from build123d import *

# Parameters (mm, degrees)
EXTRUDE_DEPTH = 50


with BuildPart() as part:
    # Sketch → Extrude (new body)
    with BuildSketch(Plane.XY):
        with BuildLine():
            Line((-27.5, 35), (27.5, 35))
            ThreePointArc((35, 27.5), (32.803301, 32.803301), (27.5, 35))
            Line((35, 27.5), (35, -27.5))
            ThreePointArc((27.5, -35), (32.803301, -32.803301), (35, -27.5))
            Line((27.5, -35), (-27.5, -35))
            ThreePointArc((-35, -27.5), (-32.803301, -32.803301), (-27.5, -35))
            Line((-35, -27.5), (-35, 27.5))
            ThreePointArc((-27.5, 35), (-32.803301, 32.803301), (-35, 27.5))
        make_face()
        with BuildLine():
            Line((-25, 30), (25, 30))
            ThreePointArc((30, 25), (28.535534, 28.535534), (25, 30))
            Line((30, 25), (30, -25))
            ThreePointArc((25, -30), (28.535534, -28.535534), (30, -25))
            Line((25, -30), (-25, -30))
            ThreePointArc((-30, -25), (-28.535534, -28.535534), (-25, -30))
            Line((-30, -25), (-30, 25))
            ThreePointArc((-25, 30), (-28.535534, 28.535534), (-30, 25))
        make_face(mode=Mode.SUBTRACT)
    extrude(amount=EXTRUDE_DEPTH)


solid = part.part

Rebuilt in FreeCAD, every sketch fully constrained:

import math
import FreeCAD as App
import Part
import Sketcher

V = App.Vector

doc = App.newDocument("Part")
body = doc.addObject("PartDesign::Body", "Body")

# Sketch on XY plane
sketch1 = body.newObject("Sketcher::SketchObject", "Sketch")
sketch1.AttachmentSupport = (doc.getObject("XY_Plane"), [""])
sketch1.MapMode = "FlatFace"
sketch1.addGeometry(Part.LineSegment(V(27.5, 35, 0), V(-27.5, 35, 0)), False)
sketch1.addGeometry(Part.ArcOfCircle(Part.Circle(V(-27.5, 27.5, 0), V(0, 0, 1), 7.5), math.radians(90), math.radians(180)), False)
sketch1.addGeometry(Part.LineSegment(V(-35, 27.5, 0), V(-35, -27.5, 0)), False)
sketch1.addGeometry(Part.ArcOfCircle(Part.Circle(V(-27.5, -27.5, 0), V(0, 0, 1), 7.5), math.radians(180), math.radians(270)), False)
sketch1.addGeometry(Part.LineSegment(V(-27.5, -35, 0), V(27.5, -35, 0)), False)
sketch1.addGeometry(Part.ArcOfCircle(Part.Circle(V(27.5, -27.5, 0), V(0, 0, 1), 7.5), math.radians(-90), math.radians(0)), False)
sketch1.addGeometry(Part.LineSegment(V(35, -27.5, 0), V(35, 27.5, 0)), False)
sketch1.addGeometry(Part.ArcOfCircle(Part.Circle(V(27.5, 27.5, 0), V(0, 0, 1), 7.5), math.radians(0), math.radians(90)), False)
sketch1.addGeometry(Part.LineSegment(V(-25, 30, 0), V(25, 30, 0)), False)
sketch1.addGeometry(Part.ArcOfCircle(Part.Circle(V(25, 25, 0), V(0, 0, 1), 5), math.radians(0), math.radians(90)), False)
sketch1.addGeometry(Part.LineSegment(V(30, 25, 0), V(30, -25, 0)), False)
sketch1.addGeometry(Part.ArcOfCircle(Part.Circle(V(25, -25, 0), V(0, 0, 1), 5), math.radians(-90), math.radians(0)), False)
sketch1.addGeometry(Part.LineSegment(V(25, -30, 0), V(-25, -30, 0)), False)
sketch1.addGeometry(Part.ArcOfCircle(Part.Circle(V(-25, -25, 0), V(0, 0, 1), 5), math.radians(180), math.radians(270)), False)
sketch1.addGeometry(Part.LineSegment(V(-30, -25, 0), V(-30, 25, 0)), False)
sketch1.addGeometry(Part.ArcOfCircle(Part.Circle(V(-25, 25, 0), V(0, 0, 1), 5), math.radians(90), math.radians(180)), False)
sketch1.addConstraint(Sketcher.Constraint("Tangent", 0, 2, 1, 1))
sketch1.addConstraint(Sketcher.Constraint("Tangent", 1, 2, 2, 1))
sketch1.addConstraint(Sketcher.Constraint("Tangent", 2, 2, 3, 1))
sketch1.addConstraint(Sketcher.Constraint("Tangent", 3, 2, 4, 1))
sketch1.addConstraint(Sketcher.Constraint("Tangent", 4, 2, 5, 1))
sketch1.addConstraint(Sketcher.Constraint("Tangent", 5, 2, 6, 1))
sketch1.addConstraint(Sketcher.Constraint("Tangent", 6, 2, 7, 1))
sketch1.addConstraint(Sketcher.Constraint("Tangent", 7, 2, 0, 1))
sketch1.addConstraint(Sketcher.Constraint("Tangent", 8, 2, 9, 2))
sketch1.addConstraint(Sketcher.Constraint("Tangent", 9, 1, 10, 1))
sketch1.addConstraint(Sketcher.Constraint("Tangent", 10, 2, 11, 2))
sketch1.addConstraint(Sketcher.Constraint("Tangent", 11, 1, 12, 1))
sketch1.addConstraint(Sketcher.Constraint("Tangent", 12, 2, 13, 2))
sketch1.addConstraint(Sketcher.Constraint("Tangent", 13, 1, 14, 1))
sketch1.addConstraint(Sketcher.Constraint("Tangent", 14, 2, 15, 2))
sketch1.addConstraint(Sketcher.Constraint("Tangent", 15, 1, 8, 1))
sketch1.addConstraint(Sketcher.Constraint("Horizontal", 0))
sketch1.addConstraint(Sketcher.Constraint("Vertical", 2))
sketch1.addConstraint(Sketcher.Constraint("Horizontal", 4))
sketch1.addConstraint(Sketcher.Constraint("Vertical", 6))
sketch1.addConstraint(Sketcher.Constraint("Horizontal", 8))
sketch1.addConstraint(Sketcher.Constraint("Vertical", 10))
sketch1.addConstraint(Sketcher.Constraint("Horizontal", 12))
sketch1.addConstraint(Sketcher.Constraint("Vertical", 14))
sketch1.addConstraint(Sketcher.Constraint("Equal", 1, 3))
sketch1.addConstraint(Sketcher.Constraint("Equal", 3, 5))
sketch1.addConstraint(Sketcher.Constraint("Equal", 5, 7))
sketch1.addConstraint(Sketcher.Constraint("Equal", 9, 11))
sketch1.addConstraint(Sketcher.Constraint("Equal", 11, 13))
sketch1.addConstraint(Sketcher.Constraint("Equal", 13, 15))
sketch1.addConstraint(Sketcher.Constraint("Symmetric", 1, 3, 5, 3, -1, 1))
sketch1.addConstraint(Sketcher.Constraint("Symmetric", 9, 3, 13, 3, -1, 1))
sketch1.addConstraint(Sketcher.Constraint("Equal", 4, 2))
sketch1.addConstraint(Sketcher.Constraint("Equal", 12, 10))
sketch1.addConstraint(Sketcher.Constraint("Radius", 9, 5.0))
sketch1.addConstraint(Sketcher.Constraint("Radius", 1, 7.5))
sketch1.addConstraint(Sketcher.Constraint("DistanceX", 0, 2, 0, 1, 55.0))
sketch1.addConstraint(Sketcher.Constraint("DistanceX", 8, 1, 8, 2, 50.0))
pad1 = body.newObject("PartDesign::Pad", "Pad")
pad1.Profile = sketch1
pad1.Length = 50

doc.recompute()
